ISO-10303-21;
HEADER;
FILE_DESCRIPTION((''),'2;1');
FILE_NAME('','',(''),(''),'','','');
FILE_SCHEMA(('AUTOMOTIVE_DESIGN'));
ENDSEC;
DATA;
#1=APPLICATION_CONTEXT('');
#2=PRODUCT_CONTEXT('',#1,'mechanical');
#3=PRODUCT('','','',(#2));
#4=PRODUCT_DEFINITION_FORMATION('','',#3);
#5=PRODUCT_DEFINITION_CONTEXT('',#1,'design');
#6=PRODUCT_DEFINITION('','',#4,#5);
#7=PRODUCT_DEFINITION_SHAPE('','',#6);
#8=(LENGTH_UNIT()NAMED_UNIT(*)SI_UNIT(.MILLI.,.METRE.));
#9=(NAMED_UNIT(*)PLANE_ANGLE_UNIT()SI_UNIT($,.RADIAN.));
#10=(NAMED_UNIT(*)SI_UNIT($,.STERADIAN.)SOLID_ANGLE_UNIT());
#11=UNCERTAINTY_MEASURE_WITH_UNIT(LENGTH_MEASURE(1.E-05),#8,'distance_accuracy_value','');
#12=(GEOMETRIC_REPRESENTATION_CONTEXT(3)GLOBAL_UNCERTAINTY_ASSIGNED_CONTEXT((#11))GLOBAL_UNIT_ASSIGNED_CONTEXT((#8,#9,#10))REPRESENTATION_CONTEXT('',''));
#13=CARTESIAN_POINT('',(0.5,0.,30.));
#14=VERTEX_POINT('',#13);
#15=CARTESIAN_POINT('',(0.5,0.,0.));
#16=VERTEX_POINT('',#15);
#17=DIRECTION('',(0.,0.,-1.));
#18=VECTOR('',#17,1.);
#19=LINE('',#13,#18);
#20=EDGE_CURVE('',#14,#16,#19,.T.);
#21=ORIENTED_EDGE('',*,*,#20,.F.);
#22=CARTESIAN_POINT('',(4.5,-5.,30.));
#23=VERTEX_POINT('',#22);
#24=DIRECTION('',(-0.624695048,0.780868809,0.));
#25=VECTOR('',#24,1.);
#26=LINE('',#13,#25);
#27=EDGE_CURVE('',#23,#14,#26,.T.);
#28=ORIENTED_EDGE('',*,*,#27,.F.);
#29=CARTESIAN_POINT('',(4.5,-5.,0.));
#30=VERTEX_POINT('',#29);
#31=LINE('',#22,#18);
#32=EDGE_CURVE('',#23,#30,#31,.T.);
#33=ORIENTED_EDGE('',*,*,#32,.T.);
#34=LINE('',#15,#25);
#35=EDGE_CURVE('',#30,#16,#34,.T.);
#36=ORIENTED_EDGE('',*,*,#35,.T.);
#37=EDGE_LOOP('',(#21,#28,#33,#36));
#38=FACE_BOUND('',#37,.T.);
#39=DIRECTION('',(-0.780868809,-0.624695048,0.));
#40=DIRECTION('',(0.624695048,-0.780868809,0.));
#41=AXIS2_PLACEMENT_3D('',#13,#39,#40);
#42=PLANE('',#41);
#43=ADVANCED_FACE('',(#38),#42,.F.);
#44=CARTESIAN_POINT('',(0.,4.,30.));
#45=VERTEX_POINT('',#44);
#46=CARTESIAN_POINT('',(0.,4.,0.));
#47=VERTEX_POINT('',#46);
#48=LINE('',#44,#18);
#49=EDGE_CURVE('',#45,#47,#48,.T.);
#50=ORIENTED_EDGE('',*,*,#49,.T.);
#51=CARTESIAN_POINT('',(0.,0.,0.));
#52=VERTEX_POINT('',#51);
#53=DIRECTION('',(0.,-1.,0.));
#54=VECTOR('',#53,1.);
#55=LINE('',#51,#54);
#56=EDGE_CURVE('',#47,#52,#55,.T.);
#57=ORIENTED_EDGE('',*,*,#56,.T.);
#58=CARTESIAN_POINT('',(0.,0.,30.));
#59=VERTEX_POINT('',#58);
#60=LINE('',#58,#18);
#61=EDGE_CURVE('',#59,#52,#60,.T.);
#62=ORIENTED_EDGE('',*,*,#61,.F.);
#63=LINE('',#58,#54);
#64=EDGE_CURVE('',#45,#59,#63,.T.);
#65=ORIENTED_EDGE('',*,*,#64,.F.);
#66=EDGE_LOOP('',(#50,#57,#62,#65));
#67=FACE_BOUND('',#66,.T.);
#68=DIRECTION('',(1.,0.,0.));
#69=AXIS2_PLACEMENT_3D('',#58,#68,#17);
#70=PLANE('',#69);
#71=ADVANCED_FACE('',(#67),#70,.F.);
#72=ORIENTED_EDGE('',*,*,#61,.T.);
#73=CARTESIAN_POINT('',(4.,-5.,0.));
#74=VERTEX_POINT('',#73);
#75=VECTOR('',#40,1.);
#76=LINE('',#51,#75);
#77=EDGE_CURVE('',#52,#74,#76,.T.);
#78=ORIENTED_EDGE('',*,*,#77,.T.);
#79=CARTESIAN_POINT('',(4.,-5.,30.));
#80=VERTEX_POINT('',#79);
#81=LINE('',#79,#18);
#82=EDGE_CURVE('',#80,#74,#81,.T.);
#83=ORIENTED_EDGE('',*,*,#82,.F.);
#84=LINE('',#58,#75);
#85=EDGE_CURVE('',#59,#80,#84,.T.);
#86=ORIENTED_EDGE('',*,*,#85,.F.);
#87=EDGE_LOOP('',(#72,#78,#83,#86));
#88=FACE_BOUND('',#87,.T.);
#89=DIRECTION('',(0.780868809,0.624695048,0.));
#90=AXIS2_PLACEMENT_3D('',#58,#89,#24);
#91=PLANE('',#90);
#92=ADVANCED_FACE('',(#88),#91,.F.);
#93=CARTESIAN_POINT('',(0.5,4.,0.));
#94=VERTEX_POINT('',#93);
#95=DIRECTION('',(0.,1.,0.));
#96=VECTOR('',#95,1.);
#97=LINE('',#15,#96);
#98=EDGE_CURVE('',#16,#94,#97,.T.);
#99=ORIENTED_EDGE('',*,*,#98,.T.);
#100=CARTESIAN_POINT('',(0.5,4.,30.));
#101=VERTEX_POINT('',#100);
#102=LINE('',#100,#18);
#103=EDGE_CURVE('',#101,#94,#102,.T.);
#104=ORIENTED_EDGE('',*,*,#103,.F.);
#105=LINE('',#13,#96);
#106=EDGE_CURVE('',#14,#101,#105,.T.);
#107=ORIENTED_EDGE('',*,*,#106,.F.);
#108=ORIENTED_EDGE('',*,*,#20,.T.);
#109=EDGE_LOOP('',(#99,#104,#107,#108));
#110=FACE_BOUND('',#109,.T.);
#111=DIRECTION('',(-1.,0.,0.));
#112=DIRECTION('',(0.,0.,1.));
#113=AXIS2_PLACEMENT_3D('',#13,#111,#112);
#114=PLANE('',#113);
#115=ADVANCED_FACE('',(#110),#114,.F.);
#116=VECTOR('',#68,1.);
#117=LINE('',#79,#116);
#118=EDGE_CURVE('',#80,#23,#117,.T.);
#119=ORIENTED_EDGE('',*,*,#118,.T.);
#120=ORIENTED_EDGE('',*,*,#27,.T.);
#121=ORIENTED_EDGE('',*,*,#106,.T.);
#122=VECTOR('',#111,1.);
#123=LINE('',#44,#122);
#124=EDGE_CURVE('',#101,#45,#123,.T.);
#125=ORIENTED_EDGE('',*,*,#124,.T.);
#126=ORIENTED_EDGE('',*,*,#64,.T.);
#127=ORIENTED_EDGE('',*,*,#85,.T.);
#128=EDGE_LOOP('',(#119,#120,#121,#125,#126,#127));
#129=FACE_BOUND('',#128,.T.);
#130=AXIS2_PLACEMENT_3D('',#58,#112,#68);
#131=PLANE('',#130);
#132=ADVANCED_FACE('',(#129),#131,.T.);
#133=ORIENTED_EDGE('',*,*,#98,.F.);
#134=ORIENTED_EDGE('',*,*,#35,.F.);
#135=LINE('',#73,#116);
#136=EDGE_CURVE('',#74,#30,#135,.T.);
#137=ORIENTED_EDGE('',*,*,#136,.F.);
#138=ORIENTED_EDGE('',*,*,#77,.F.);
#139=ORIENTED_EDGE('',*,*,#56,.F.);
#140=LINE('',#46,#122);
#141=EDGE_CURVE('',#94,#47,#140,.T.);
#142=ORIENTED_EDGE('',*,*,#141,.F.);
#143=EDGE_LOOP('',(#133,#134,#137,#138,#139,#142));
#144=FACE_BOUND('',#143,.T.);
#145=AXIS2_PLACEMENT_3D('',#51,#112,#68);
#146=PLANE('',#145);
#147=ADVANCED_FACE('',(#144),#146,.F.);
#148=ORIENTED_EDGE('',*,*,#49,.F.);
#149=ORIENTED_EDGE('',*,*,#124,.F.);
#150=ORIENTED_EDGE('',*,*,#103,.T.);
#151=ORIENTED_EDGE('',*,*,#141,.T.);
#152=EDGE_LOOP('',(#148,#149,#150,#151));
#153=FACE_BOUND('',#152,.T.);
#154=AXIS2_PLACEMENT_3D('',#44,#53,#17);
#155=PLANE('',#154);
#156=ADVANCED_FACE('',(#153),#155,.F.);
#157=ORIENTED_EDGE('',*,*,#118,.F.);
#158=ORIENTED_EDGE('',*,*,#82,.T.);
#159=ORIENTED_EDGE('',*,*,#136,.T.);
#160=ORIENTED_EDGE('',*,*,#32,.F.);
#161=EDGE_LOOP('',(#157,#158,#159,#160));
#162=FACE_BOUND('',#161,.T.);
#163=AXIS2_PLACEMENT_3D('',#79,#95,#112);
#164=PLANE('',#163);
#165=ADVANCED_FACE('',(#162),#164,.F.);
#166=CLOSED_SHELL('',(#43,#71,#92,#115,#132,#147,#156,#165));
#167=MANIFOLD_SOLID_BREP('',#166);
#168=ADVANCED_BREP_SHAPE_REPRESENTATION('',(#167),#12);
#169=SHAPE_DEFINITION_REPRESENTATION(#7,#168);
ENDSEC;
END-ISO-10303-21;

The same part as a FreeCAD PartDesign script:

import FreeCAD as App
import Part
import Sketcher
from FreeCAD import Vector
Q = App.Units.Quantity

doc = App.newDocument("Part")
body = doc.addObject("PartDesign::Body", "Body")

# Sketch on XY plane
sketch1 = doc.addObject("Sketcher::SketchObject", "Sketch")
body.addObject(sketch1)
sketch1.AttachmentSupport = (doc.XY_Plane, [""])
sketch1.MapMode = "FlatFace"
sketch1.addGeometry([
    Part.LineSegment(Vector(0, 4, 0), Vector(0, 0, 0)),  # 0
    Part.LineSegment(Vector(0, 0, 0), Vector(4, -5, 0)),  # 1
    Part.LineSegment(Vector(4, -5, 0), Vector(4.5, -5, 0)),  # 2
    Part.LineSegment(Vector(4.5, -5, 0), Vector(0.5, 0, 0)),  # 3
    Part.LineSegment(Vector(0.5, 0, 0), Vector(0.5, 4, 0)),  # 4
    Part.LineSegment(Vector(0.5, 4, 0), Vector(0, 4, 0)),  # 5
], False)
sketch1.addConstraint([
    Sketcher.Constraint("Coincident", 0, 2, 1, 1),
    Sketcher.Constraint("Coincident", 1, 2, 2, 1),
    Sketcher.Constraint("Coincident", 2, 2, 3, 1),
    Sketcher.Constraint("Coincident", 3, 2, 4, 1),
    Sketcher.Constraint("Coincident", 4, 2, 5, 1),
    Sketcher.Constraint("Coincident", 5, 2, 0, 1),
    Sketcher.Constraint("Vertical", 0),
    Sketcher.Constraint("Horizontal", 2),
    Sketcher.Constraint("Vertical", 4),
    Sketcher.Constraint("Horizontal", 5),
    Sketcher.Constraint("Coincident", 0, 2, -1, 1),
    Sketcher.Constraint("PointOnObject", 3, 2, -1),
    Sketcher.Constraint("Parallel", 1, 3),
    Sketcher.Constraint("DistanceY", 0, 2, 0, 1, Q("4 mm")),
    Sketcher.Constraint("DistanceX", 2, 1, 2, 2, Q("0.5 mm")),
    Sketcher.Constraint("DistanceX", -1, 1, 1, 2, Q("4 mm")),
    Sketcher.Constraint("DistanceY", 1, 2, -1, 1, Q("5 mm")),
])
pad1 = doc.addObject("PartDesign::Pad", "Pad")
body.addObject(pad1)
pad1.Profile = sketch1
pad1.Length = 30

doc.recompute()
